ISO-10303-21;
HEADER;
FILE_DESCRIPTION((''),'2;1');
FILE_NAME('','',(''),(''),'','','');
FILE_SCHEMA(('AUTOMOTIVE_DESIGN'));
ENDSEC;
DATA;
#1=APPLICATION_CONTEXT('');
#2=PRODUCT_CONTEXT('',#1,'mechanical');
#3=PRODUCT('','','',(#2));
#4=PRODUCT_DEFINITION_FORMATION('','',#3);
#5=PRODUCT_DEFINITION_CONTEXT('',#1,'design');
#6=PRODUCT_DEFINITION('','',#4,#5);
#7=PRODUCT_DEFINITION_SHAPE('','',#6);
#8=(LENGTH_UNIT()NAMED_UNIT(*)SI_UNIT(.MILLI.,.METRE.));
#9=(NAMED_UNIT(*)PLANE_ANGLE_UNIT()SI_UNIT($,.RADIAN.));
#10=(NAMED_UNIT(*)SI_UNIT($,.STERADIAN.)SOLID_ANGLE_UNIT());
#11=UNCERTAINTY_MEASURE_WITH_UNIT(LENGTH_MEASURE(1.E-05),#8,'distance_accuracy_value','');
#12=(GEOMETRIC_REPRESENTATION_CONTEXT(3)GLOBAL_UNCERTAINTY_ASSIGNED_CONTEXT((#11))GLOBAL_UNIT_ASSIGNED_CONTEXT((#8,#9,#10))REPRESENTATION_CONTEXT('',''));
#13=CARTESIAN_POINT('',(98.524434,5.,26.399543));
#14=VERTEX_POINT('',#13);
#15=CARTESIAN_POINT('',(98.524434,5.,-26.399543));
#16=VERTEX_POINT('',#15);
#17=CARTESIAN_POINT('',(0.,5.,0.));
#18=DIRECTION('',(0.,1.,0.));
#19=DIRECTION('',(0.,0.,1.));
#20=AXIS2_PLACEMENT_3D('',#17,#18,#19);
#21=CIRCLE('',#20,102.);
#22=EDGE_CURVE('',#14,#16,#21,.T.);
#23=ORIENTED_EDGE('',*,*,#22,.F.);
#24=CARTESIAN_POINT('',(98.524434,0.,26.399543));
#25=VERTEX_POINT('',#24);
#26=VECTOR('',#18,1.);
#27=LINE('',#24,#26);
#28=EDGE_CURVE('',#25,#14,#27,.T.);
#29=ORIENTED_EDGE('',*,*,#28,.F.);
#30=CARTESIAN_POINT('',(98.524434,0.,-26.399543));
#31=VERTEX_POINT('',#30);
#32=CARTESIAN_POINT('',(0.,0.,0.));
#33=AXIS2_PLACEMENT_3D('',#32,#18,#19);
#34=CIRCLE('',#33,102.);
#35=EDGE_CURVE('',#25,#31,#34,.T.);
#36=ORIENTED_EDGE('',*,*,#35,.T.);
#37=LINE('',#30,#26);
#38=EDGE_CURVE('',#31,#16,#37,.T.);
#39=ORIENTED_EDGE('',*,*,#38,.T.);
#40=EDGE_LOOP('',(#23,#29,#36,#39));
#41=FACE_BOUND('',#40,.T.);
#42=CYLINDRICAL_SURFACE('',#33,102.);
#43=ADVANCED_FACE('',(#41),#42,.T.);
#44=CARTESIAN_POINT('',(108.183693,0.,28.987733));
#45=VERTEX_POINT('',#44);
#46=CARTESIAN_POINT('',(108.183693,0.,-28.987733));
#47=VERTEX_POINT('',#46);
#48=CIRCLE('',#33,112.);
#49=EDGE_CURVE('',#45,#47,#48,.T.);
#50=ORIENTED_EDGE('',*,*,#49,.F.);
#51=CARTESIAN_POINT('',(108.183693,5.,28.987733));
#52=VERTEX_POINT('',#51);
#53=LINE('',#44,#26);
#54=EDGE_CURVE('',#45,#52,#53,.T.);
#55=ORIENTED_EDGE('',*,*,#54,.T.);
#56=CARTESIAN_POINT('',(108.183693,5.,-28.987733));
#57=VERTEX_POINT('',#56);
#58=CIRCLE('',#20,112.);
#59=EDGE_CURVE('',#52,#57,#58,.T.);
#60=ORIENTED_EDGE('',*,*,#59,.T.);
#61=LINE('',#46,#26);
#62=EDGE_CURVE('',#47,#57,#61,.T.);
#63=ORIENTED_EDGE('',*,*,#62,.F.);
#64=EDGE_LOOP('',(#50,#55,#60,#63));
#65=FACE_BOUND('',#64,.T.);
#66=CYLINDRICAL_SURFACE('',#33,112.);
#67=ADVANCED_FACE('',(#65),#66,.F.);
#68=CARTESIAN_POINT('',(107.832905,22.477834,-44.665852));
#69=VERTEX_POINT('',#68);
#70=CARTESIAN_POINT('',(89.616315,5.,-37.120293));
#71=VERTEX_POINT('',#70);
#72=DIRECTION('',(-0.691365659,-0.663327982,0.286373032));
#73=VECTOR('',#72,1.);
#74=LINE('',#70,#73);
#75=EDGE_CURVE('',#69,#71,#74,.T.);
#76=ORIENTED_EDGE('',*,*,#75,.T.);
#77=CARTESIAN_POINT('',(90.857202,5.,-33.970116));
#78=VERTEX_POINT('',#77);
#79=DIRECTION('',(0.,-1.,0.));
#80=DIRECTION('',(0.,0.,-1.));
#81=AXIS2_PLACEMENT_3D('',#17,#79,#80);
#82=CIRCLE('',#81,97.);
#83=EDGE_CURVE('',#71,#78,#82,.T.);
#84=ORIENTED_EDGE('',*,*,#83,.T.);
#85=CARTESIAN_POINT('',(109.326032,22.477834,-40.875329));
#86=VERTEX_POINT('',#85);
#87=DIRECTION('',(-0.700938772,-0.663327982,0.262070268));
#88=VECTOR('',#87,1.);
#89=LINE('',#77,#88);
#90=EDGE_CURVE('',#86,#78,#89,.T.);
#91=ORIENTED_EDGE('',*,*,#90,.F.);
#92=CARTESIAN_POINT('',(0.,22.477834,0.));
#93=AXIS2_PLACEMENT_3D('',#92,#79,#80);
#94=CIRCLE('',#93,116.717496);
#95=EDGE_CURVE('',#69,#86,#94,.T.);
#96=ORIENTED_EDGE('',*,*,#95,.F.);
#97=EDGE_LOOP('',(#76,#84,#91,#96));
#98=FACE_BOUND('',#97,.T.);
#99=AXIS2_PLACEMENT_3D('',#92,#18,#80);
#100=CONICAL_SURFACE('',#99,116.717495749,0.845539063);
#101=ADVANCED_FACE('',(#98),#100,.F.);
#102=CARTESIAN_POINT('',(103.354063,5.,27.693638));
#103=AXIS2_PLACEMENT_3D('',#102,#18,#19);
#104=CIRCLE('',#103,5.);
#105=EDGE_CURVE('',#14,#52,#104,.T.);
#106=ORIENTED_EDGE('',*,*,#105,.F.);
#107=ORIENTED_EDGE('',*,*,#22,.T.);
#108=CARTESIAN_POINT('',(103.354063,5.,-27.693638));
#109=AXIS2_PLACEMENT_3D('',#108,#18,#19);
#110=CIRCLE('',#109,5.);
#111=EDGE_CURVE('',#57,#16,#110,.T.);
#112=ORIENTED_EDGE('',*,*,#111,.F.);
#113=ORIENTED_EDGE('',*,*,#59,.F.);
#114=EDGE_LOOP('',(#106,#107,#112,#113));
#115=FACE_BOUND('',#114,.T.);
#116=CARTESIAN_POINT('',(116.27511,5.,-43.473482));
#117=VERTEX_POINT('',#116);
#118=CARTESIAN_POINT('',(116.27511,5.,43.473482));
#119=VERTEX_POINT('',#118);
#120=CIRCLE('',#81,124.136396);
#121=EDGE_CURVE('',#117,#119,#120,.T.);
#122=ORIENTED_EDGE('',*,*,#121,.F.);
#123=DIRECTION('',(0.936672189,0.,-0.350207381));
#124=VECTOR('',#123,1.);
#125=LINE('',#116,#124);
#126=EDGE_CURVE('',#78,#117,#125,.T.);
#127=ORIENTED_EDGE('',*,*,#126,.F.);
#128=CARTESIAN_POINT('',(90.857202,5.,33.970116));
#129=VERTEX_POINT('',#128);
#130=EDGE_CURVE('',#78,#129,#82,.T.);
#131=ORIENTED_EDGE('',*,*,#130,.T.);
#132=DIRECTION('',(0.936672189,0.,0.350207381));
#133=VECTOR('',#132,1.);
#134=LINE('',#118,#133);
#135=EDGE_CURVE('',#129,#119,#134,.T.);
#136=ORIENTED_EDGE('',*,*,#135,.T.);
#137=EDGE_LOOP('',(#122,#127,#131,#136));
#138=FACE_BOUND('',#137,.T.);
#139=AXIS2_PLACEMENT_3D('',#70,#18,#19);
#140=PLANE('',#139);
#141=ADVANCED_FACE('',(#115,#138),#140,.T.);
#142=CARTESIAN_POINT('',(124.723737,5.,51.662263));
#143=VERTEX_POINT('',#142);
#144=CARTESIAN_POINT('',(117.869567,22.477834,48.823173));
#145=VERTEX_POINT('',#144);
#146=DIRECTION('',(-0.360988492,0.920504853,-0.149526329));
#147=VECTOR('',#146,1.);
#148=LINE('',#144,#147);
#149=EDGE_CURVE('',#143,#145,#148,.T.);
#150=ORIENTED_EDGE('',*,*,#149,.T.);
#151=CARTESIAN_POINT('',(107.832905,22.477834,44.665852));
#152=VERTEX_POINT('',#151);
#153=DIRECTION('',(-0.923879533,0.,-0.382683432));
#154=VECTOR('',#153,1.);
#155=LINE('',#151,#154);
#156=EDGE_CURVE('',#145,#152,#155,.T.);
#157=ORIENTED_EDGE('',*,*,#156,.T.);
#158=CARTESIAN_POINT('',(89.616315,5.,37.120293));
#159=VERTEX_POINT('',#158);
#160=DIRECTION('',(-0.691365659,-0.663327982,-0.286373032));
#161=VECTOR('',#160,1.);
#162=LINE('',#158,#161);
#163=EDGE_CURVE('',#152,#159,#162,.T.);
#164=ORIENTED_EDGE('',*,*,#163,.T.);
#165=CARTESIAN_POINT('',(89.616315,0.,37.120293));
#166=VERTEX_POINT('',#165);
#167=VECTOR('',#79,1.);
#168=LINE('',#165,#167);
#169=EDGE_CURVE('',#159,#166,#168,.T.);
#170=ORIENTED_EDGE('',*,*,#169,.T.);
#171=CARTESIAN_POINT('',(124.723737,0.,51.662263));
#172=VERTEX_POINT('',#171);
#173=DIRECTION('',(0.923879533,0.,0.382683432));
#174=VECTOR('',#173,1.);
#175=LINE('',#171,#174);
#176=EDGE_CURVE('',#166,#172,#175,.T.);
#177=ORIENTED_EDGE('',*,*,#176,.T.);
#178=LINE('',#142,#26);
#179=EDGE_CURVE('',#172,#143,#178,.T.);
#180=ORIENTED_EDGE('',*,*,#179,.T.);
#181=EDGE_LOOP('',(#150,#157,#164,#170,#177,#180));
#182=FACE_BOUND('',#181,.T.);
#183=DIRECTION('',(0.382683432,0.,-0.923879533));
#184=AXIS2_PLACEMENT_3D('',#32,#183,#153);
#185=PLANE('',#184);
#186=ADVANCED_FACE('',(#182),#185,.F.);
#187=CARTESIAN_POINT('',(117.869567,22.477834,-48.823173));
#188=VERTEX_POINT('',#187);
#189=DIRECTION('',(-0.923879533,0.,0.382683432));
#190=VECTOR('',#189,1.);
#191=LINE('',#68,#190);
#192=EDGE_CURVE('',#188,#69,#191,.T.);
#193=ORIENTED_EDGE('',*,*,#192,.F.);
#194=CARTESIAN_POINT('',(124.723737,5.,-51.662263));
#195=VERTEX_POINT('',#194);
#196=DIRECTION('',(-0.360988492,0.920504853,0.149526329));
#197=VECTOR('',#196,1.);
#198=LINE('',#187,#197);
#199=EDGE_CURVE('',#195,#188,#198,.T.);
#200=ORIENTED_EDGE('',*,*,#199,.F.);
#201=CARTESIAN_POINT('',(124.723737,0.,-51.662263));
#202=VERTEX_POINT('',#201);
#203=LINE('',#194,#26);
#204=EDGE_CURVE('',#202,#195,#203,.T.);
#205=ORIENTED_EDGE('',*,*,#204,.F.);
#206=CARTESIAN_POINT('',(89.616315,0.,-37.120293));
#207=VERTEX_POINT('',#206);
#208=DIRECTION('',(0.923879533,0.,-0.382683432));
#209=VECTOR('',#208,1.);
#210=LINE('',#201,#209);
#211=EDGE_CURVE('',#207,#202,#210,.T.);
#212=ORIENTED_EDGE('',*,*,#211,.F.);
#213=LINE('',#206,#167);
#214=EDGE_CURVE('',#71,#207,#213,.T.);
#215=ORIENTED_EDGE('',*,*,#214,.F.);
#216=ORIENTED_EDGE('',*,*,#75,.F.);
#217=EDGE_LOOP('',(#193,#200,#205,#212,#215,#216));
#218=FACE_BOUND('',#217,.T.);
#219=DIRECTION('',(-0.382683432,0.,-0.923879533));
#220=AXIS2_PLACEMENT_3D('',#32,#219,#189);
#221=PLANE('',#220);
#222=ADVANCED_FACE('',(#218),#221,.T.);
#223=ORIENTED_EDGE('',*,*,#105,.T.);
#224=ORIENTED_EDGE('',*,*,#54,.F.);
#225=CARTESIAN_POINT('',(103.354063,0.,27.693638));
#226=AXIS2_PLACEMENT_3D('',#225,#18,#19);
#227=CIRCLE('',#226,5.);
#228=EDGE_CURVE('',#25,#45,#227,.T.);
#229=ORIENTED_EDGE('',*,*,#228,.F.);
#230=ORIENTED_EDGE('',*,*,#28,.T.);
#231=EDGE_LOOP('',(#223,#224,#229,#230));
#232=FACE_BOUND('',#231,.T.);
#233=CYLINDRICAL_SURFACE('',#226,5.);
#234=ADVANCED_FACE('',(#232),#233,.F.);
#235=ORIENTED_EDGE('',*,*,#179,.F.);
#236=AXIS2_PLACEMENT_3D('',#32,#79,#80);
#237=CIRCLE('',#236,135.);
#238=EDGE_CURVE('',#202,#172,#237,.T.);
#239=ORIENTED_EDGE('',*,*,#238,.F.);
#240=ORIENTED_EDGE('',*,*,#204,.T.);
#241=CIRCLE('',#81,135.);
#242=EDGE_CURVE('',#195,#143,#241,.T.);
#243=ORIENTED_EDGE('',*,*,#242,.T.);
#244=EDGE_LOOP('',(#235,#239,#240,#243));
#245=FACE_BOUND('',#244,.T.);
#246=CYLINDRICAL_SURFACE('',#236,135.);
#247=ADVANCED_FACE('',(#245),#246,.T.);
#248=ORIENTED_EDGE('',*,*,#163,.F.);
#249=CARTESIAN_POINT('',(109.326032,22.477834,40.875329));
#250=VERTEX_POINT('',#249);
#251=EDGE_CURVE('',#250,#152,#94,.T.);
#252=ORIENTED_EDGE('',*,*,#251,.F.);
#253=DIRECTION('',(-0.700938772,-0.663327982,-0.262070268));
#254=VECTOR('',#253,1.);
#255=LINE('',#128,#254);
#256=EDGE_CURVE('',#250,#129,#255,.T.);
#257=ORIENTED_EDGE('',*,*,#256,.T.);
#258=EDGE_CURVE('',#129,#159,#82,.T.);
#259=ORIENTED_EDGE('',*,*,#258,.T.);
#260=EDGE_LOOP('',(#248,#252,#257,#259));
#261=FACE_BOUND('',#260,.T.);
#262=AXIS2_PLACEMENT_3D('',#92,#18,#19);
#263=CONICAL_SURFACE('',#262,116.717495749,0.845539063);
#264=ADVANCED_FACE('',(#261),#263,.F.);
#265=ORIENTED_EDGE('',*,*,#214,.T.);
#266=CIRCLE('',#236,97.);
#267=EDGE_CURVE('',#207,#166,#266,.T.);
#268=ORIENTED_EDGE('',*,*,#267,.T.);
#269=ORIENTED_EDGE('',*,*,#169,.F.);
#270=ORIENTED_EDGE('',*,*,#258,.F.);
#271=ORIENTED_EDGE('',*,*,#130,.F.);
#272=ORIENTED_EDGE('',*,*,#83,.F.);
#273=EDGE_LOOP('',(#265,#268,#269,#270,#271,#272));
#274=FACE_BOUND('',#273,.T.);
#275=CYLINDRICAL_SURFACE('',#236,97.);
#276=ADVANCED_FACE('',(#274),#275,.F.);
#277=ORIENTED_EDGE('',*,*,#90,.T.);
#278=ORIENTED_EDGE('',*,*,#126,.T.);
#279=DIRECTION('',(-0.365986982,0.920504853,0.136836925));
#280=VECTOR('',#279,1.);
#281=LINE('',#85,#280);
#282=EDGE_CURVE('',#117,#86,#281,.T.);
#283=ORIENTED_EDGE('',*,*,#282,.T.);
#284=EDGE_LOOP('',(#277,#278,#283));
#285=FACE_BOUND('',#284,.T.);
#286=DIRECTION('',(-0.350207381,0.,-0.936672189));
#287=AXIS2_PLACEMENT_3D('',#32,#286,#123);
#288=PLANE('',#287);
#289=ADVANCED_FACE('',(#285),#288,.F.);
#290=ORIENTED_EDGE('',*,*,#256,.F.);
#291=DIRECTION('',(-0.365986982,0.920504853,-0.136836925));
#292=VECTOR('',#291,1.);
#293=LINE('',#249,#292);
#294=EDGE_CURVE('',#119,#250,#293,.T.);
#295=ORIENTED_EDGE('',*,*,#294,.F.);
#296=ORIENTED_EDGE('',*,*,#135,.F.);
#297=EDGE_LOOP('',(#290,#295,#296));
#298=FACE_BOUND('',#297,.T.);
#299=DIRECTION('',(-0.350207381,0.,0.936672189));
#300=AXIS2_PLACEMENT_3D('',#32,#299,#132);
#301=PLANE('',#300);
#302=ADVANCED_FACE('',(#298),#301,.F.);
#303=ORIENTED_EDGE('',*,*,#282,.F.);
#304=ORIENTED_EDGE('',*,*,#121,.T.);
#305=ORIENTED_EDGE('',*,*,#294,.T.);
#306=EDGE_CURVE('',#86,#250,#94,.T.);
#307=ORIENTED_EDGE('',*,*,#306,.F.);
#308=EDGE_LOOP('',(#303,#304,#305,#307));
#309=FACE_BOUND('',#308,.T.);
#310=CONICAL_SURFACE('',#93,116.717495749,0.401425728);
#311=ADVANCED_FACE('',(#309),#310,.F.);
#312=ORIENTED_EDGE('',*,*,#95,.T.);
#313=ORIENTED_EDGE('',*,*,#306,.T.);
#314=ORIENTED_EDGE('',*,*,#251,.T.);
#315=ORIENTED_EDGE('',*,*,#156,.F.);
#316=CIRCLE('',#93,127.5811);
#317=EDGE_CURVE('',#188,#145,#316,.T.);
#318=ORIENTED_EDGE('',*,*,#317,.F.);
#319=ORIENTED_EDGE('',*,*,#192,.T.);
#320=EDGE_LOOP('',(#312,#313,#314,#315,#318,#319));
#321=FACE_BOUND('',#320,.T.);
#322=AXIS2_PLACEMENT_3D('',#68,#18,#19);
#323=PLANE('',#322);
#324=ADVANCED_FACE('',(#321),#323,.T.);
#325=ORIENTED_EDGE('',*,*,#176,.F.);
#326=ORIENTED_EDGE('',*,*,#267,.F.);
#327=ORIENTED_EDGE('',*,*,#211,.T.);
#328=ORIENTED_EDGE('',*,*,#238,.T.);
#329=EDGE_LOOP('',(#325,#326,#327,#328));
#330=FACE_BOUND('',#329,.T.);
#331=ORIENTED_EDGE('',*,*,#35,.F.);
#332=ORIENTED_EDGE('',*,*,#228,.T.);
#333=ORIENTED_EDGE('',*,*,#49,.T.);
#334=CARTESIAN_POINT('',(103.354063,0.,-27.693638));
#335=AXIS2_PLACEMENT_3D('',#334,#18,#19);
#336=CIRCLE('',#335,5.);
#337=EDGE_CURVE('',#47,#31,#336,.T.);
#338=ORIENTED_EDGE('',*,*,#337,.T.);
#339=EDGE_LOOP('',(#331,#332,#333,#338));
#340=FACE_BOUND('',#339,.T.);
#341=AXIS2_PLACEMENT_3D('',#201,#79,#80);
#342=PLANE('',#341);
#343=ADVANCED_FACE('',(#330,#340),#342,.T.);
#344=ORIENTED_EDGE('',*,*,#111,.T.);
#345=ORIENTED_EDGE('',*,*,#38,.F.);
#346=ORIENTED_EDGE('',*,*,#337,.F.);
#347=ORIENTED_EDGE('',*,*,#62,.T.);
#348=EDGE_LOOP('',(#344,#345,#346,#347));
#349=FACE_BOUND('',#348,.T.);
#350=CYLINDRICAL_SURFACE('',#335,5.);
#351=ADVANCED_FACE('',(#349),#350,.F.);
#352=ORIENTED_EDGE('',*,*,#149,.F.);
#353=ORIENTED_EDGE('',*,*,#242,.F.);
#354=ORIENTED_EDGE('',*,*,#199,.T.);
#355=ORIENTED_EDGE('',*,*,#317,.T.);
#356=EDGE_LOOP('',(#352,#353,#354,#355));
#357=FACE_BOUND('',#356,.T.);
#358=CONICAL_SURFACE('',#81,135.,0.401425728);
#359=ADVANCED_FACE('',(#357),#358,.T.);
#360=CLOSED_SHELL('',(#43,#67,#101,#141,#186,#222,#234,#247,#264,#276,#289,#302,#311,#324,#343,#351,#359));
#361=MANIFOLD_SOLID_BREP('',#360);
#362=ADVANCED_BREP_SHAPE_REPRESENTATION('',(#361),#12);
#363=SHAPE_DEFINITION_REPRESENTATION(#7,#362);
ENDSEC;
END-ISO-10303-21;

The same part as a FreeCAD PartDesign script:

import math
import FreeCAD as App
import Part
import Sketcher

V = App.Vector
Q = App.Units.Quantity

doc = App.newDocument("Part")
body = doc.addObject("PartDesign::Body", "Body")

# Sketch on XY plane
sketch1 = body.newObject("Sketcher::SketchObject", "Sketch")
sketch1.AttachmentSupport = (doc.getObject("XY_Plane"), [""])
sketch1.MapMode = "FlatFace"
sketch1.addGeometry([
    Part.LineSegment(V(97, 5, 0), V(97, 0, 0)),  # 0
    Part.LineSegment(V(97, 0, 0), V(135, 0, 0)),  # 1
    Part.LineSegment(V(135, 0, 0), V(135, 5, 0)),  # 2
    Part.LineSegment(V(135, 5, 0), V(128, 22, 0)),  # 3
    Part.LineSegment(V(128, 22, 0), V(117, 22, 0)),  # 4
    Part.LineSegment(V(117, 22, 0), V(124, 5, 0)),  # 5
    Part.LineSegment(V(124, 5, 0), V(97, 5, 0)),  # 6
], False)
sketch1.addConstraint([
    Sketcher.Constraint("Coincident", 0, 2, 1, 1),
    Sketcher.Constraint("Coincident", 1, 2, 2, 1),
    Sketcher.Constraint("Coincident", 2, 2, 3, 1),
    Sketcher.Constraint("Coincident", 3, 2, 4, 1),
    Sketcher.Constraint("Coincident", 4, 2, 5, 1),
    Sketcher.Constraint("Coincident", 5, 2, 6, 1),
    Sketcher.Constraint("Coincident", 6, 2, 0, 1),
    Sketcher.Constraint("Vertical", 0),
    Sketcher.Constraint("Horizontal", 1),
    Sketcher.Constraint("Vertical", 2),
    Sketcher.Constraint("Horizontal", 4),
    Sketcher.Constraint("Horizontal", 6),
    Sketcher.Constraint("PointOnObject", 0, 2, -1),
    Sketcher.Constraint("Parallel", 3, 5),
    Sketcher.Constraint("Horizontal", 2, 2, 5, 2),
    Sketcher.Constraint("DistanceX", 1, 1, 1, 2, 38.0),
    Sketcher.Constraint("DistanceY", 0, 2, 0, 1, 5.0),
    Sketcher.Constraint("Angle", 3, Q("113 deg")),
    Sketcher.Constraint("DistanceX", -1, 1, 0, 2, 97.0),
    Sketcher.Constraint("DistanceX", -1, 1, 3, 2, 127.5811),
    Sketcher.Constraint("DistanceX", 4, 2, 4, 1, 10.863604),
])
revolution = body.newObject("PartDesign::Revolution", "Revolution")
revolution.Profile = sketch1
revolution.ReferenceAxis = (sketch1, ["V_Axis"])
revolution.Angle = 22.5

# Sketch on XY plane
sketch2 = body.newObject("Sketcher::SketchObject", "Sketch001")
sketch2.AttachmentSupport = (doc.getObject("XY_Plane"), [""])
sketch2.MapMode = "FlatFace"
sketch2.addGeometry([
    Part.LineSegment(V(97, 5, 0), V(97, 0, 0)),  # 0
    Part.LineSegment(V(97, 0, 0), V(135, 0, 0)),  # 1
    Part.LineSegment(V(135, 0, 0), V(135, 5, 0)),  # 2
    Part.LineSegment(V(135, 5, 0), V(128, 22, 0)),  # 3
    Part.LineSegment(V(128, 22, 0), V(117, 22, 0)),  # 4
    Part.LineSegment(V(117, 22, 0), V(124, 5, 0)),  # 5
    Part.LineSegment(V(124, 5, 0), V(97, 5, 0)),  # 6
], False)
sketch2.addConstraint([
    Sketcher.Constraint("Coincident", 0, 2, 1, 1),
    Sketcher.Constraint("Coincident", 1, 2, 2, 1),
    Sketcher.Constraint("Coincident", 2, 2, 3, 1),
    Sketcher.Constraint("Coincident", 3, 2, 4, 1),
    Sketcher.Constraint("Coincident", 4, 2, 5, 1),
    Sketcher.Constraint("Coincident", 5, 2, 6, 1),
    Sketcher.Constraint("Coincident", 6, 2, 0, 1),
    Sketcher.Constraint("Vertical", 0),
    Sketcher.Constraint("Horizontal", 1),
    Sketcher.Constraint("Vertical", 2),
    Sketcher.Constraint("Horizontal", 4),
    Sketcher.Constraint("Horizontal", 6),
    Sketcher.Constraint("PointOnObject", 0, 2, -1),
    Sketcher.Constraint("Parallel", 3, 5),
    Sketcher.Constraint("Horizontal", 2, 2, 5, 2),
    Sketcher.Constraint("DistanceX", 1, 1, 1, 2, 38.0),
    Sketcher.Constraint("DistanceY", 0, 2, 0, 1, 5.0),
    Sketcher.Constraint("Angle", 3, Q("113 deg")),
    Sketcher.Constraint("DistanceX", -1, 1, 0, 2, 97.0),
    Sketcher.Constraint("DistanceX", -1, 1, 3, 2, 127.5811),
    Sketcher.Constraint("DistanceX", 4, 2, 4, 1, 10.863604),
])
revolution2 = body.newObject("PartDesign::Revolution", "Revolution001")
revolution2.Profile = sketch2
revolution2.ReferenceAxis = (sketch2, ["V_Axis"])
revolution2.Angle = 22.5
revolution2.Reversed = True

# Sketch on an angled plane
sketch3 = body.newObject("Sketcher::SketchObject", "Sketch002")
sketch3.Placement = App.Placement(V(0, 0, 0), App.Rotation(V(0.923879533, 0, 0.382683432), V(0, 1.000000001, 0), V(-0.382683432, 0, 0.923879533), "ZXY"))
sketch3.addGeometry([
    Part.LineSegment(V(117, 22, 0), V(97, 5, 0)),
    Part.LineSegment(V(97, 5, 0), V(124, 5, 0)),
    Part.LineSegment(V(124, 5, 0), V(117, 22, 0)),
], False)
sketch3.addConstraint([
    Sketcher.Constraint("Coincident", 0, 2, 1, 1),
    Sketcher.Constraint("Coincident", 1, 2, 2, 1),
    Sketcher.Constraint("Coincident", 2, 2, 0, 1),
    Sketcher.Constraint("Horizontal", 1),
    Sketcher.Constraint("Angle", 2, Q("113 deg")),
    Sketcher.Constraint("DistanceX", -1, 1, 0, 2, 97.0),
    Sketcher.Constraint("DistanceY", -1, 1, 0, 2, 5.0),
    Sketcher.Constraint("DistanceX", 2, 2, 1, 2, 7.4189),
    Sketcher.Constraint("DistanceX", 1, 1, 1, 2, 27.136396),
])
revolution3 = body.newObject("PartDesign::Revolution", "Revolution002")
revolution3.Profile = sketch3
revolution3.ReferenceAxis = (sketch3, ["V_Axis"])
revolution3.Angle = 2
doc.recompute()

mirrored = body.newObject("PartDesign::Mirrored", "Mirrored")
mirrored.Originals = [revolution3]
mirrored.MirrorPlane = (doc.getObject("XY_Plane"), [""])
body.Tip = mirrored

# Sketch on XZ plane
sketch4 = body.newObject("Sketcher::SketchObject", "Sketch003")
sketch4.AttachmentSupport = (doc.getObject("XZ_Plane"), [""])
sketch4.MapMode = "FlatFace"
sketch4.AttachmentOffset = App.Placement(V(0, 0, -5), App.Rotation())
sketch4.addGeometry([
    Part.ArcOfCircle(Part.Circle(V(0, 0, 0), V(0, 0, 1), 112), math.radians(-15), math.radians(15)),
    Part.ArcOfCircle(Part.Circle(V(103, -28, 0), V(0, 0, 1), 5), math.radians(165), math.radians(345)),
    Part.ArcOfCircle(Part.Circle(V(0, 0, 0), V(0, 0, 1), 102), math.radians(-15), math.radians(15)),
    Part.ArcOfCircle(Part.Circle(V(103, 28, 0), V(0, 0, 1), 5), math.radians(15), math.radians(195)),
], False)
sketch4.addConstraint([
    Sketcher.Constraint("Tangent", 0, 1, 1, 2),
    Sketcher.Constraint("Tangent", 1, 1, 2, 1),
    Sketcher.Constraint("Tangent", 2, 2, 3, 2),
    Sketcher.Constraint("Tangent", 3, 1, 0, 2),
    Sketcher.Constraint("Coincident", 0, 3, -1, 1),
    Sketcher.Constraint("Coincident", 2, 3, -1, 1),
    Sketcher.Constraint("Vertical", 1, 3, 3, 3),
    Sketcher.Constraint("Radius", 0, 112.0),
    Sketcher.Constraint("Radius", 1, 5.0),
    Sketcher.Constraint("DistanceY", 0, 1, 3, 3, 56.681371),
])
pocket1 = body.newObject("PartDesign::Pocket", "Pocket")
pocket1.Profile = sketch4
pocket1.Type = "ThroughAll"
pocket1.Reversed = True

doc.recompute()
